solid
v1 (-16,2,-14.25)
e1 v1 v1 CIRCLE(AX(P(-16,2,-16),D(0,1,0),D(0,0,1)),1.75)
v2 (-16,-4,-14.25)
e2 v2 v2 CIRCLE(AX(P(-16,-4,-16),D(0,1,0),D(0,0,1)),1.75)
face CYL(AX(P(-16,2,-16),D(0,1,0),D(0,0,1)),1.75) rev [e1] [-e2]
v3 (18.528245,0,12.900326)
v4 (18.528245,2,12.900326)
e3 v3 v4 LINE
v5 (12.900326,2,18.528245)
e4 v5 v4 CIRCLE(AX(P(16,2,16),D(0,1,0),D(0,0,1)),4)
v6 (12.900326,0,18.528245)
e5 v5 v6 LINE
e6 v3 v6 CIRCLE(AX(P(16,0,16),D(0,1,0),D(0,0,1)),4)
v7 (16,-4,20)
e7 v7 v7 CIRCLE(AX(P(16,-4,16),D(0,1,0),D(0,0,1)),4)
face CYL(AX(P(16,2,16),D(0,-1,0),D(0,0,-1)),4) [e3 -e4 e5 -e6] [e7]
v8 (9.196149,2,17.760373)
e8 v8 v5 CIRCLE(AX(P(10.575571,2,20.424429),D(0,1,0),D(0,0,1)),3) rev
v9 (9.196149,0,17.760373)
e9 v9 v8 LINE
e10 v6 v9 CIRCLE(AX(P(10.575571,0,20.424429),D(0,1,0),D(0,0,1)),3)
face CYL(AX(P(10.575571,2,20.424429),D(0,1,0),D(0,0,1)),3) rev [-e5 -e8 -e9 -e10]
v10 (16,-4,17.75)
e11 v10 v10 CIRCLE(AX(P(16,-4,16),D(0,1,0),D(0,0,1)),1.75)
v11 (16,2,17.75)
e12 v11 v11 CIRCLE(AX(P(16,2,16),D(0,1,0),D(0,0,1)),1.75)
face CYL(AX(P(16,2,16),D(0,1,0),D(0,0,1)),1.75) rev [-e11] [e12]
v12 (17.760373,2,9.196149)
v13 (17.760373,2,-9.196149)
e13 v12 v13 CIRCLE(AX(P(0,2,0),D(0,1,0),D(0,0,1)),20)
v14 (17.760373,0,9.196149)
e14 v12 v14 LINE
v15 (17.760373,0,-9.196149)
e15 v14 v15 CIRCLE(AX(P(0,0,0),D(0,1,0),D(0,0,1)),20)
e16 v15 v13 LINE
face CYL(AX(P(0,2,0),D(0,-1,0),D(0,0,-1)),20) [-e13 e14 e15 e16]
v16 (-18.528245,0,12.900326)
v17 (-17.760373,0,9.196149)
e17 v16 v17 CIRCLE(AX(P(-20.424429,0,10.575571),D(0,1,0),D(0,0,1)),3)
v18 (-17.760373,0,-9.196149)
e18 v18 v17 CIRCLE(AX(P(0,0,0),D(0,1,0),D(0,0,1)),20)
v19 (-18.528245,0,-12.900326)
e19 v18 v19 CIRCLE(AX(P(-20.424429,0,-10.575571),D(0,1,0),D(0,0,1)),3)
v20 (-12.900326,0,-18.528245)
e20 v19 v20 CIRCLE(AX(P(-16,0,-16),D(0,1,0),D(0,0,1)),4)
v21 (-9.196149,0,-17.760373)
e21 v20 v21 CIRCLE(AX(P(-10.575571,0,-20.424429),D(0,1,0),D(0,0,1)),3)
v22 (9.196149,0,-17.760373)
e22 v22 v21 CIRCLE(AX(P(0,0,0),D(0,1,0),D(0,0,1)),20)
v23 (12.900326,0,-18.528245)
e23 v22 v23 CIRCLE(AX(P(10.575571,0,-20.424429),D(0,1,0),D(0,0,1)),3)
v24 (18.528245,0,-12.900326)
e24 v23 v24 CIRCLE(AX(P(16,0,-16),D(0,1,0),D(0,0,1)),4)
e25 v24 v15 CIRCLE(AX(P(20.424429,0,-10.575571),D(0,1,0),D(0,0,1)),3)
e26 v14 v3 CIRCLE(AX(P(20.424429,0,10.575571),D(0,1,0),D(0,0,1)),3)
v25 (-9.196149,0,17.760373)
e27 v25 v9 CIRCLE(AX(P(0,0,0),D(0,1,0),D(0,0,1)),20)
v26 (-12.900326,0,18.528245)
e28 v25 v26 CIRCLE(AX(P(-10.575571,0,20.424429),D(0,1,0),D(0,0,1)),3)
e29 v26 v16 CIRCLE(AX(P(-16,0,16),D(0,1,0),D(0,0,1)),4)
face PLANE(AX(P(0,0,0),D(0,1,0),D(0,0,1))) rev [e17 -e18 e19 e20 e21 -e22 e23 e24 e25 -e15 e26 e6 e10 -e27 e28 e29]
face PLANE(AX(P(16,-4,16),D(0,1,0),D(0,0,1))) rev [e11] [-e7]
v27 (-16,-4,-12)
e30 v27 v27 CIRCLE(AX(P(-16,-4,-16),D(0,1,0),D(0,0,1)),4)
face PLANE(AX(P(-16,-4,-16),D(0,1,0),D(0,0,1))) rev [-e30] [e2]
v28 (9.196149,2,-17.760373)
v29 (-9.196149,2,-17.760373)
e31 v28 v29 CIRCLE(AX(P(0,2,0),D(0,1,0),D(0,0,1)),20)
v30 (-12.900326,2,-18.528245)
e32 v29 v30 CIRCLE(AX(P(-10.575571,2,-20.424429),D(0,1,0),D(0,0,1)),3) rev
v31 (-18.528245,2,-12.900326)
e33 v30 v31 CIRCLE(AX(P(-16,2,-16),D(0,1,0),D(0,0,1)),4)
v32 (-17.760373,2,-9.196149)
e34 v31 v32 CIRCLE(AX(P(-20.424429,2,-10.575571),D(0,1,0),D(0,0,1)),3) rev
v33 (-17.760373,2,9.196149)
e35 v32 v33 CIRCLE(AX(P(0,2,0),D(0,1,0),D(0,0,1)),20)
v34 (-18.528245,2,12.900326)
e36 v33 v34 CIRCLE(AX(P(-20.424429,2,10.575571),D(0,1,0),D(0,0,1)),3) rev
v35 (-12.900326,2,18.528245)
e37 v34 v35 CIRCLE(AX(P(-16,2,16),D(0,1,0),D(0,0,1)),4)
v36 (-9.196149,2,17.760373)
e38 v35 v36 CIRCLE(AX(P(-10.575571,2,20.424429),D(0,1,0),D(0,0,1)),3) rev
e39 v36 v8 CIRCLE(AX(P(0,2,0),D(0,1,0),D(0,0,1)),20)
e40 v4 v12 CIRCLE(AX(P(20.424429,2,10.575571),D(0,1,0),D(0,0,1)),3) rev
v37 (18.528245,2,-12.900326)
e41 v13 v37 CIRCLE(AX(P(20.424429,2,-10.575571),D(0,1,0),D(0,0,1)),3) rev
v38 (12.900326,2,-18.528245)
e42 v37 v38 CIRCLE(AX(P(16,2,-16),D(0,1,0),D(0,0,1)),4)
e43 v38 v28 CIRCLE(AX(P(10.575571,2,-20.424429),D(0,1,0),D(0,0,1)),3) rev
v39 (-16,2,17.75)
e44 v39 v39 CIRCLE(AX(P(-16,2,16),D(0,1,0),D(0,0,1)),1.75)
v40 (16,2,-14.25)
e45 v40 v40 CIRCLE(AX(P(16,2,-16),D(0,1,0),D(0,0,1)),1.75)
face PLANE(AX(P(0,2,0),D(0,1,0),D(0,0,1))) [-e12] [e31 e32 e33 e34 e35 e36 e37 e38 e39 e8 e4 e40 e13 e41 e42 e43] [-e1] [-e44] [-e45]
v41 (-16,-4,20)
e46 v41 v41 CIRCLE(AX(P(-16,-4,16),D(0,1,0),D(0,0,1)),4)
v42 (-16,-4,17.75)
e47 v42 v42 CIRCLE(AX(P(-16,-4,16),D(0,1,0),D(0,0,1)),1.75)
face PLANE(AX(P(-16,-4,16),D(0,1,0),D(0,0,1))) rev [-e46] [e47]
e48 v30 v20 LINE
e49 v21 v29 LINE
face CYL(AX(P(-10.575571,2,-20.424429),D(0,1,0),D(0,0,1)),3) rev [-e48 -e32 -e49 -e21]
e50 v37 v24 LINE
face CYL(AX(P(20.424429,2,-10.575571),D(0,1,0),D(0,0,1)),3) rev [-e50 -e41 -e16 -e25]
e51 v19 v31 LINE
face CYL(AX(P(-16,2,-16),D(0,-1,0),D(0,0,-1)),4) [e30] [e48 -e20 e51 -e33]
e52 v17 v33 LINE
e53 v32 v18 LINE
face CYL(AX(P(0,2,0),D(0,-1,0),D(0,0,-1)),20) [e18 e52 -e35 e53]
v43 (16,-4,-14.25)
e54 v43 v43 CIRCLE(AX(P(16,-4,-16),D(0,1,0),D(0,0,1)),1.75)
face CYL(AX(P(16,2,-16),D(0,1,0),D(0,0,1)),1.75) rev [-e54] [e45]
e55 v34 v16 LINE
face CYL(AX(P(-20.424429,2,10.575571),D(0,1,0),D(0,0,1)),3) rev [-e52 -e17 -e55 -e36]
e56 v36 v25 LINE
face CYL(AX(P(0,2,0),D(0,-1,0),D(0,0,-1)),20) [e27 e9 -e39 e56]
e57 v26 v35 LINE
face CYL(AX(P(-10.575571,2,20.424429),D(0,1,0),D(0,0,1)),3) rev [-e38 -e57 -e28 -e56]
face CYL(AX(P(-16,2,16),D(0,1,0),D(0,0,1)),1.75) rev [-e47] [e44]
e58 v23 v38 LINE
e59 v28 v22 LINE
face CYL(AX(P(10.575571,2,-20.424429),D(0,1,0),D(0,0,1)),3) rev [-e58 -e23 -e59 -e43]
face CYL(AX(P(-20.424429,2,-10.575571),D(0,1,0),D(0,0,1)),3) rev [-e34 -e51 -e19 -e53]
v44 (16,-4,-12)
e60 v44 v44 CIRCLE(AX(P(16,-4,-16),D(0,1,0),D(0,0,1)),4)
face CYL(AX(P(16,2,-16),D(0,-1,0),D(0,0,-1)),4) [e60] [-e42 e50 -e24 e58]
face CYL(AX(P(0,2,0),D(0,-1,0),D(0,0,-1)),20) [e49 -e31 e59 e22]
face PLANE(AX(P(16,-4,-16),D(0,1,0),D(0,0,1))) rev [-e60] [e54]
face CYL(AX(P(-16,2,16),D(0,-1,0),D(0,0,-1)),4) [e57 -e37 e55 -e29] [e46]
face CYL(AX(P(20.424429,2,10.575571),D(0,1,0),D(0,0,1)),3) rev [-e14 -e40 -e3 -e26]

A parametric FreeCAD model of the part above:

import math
import FreeCAD as App
import Part
import Sketcher

V = App.Vector


def edges_at(feature, points):
    """Names of the edges that pass closest to the given points."""
    edges = feature.Shape.Edges
    near = lambda p: min(range(len(edges)), key=lambda i: edges[i].distToShape(Part.Vertex(*p))[0])
    return sorted({f"Edge{near(p) + 1}" for p in points})

doc = App.newDocument("Part")
body = doc.addObject("PartDesign::Body", "Body")

# Sketch on XZ plane
sketch1 = doc.addObject("Sketcher::SketchObject", "Sketch")
body.addObject(sketch1)
sketch1.AttachmentSupport = (doc.XZ_Plane, [""])
sketch1.MapMode = "FlatFace"
sketch1.addGeometry(Part.ArcOfCircle(Part.Circle(V(0, 0, 0), V(0, 0, 1), 20), math.radians(143), math.radians(217)), False)
sketch1.addGeometry(Part.ArcOfCircle(Part.Circle(V(-16, 16, 0), V(0, 0, 1), 4), math.radians(0), math.radians(270)), False)
sketch1.addGeometry(Part.ArcOfCircle(Part.Circle(V(0, 0, 0), V(0, 0, 1), 20), math.radians(53), math.radians(127)), False)
sketch1.addGeometry(Part.ArcOfCircle(Part.Circle(V(16, 16, 0), V(0, 0, 1), 4), math.radians(-90), math.radians(180)), False)
sketch1.addGeometry(Part.ArcOfCircle(Part.Circle(V(0, 0, 0), V(0, 0, 1), 20), math.radians(-37), math.radians(37)), False)
sketch1.addGeometry(Part.ArcOfCircle(Part.Circle(V(16, -16, 0), V(0, 0, 1), 4), math.radians(180), math.radians(450)), False)
sketch1.addGeometry(Part.ArcOfCircle(Part.Circle(V(0, 0, 0), V(0, 0, 1), 20), math.radians(-127), math.radians(-53)), False)
sketch1.addGeometry(Part.ArcOfCircle(Part.Circle(V(-16, -16, 0), V(0, 0, 1), 4), math.radians(90), math.radians(360)), False)
sketch1.addConstraint(Sketcher.Constraint("Coincident", 0, 1, 1, 2))
sketch1.addConstraint(Sketcher.Constraint("Coincident", 1, 1, 2, 2))
sketch1.addConstraint(Sketcher.Constraint("Coincident", 2, 1, 3, 2))
sketch1.addConstraint(Sketcher.Constraint("Coincident", 3, 1, 4, 2))
sketch1.addConstraint(Sketcher.Constraint("Coincident", 4, 1, 5, 2))
sketch1.addConstraint(Sketcher.Constraint("Coincident", 5, 1, 6, 2))
sketch1.addConstraint(Sketcher.Constraint("Coincident", 6, 1, 7, 2))
sketch1.addConstraint(Sketcher.Constraint("Coincident", 7, 1, 0, 2))
sketch1.addConstraint(Sketcher.Constraint("Coincident", 0, 3, -1, 1))
sketch1.addConstraint(Sketcher.Constraint("Coincident", 2, 3, -1, 1))
sketch1.addConstraint(Sketcher.Constraint("Coincident", 4, 3, -1, 1))
sketch1.addConstraint(Sketcher.Constraint("Coincident", 6, 3, -1, 1))
sketch1.addConstraint(Sketcher.Constraint("Equal", 0, 2))
sketch1.addConstraint(Sketcher.Constraint("Equal", 1, 3))
sketch1.addConstraint(Sketcher.Constraint("Equal", 2, 4))
sketch1.addConstraint(Sketcher.Constraint("Equal", 3, 5))
sketch1.addConstraint(Sketcher.Constraint("Equal", 4, 6))
sketch1.addConstraint(Sketcher.Constraint("Equal", 5, 7))
sketch1.addConstraint(Sketcher.Constraint("Symmetric", 1, 3, 5, 3, -1, 1))
sketch1.addConstraint(Sketcher.Constraint("Symmetric", 3, 3, 7, 3, -1, 1))
sketch1.addConstraint(Sketcher.Constraint("Symmetric", 1, 3, 3, 3, -2))
sketch1.addConstraint(Sketcher.Constraint("Horizontal", 3, 3, 1, 1))
sketch1.addConstraint(Sketcher.Constraint("Vertical", 7, 3, 0, 1))
sketch1.addConstraint(Sketcher.Constraint("Radius", 0, 20.0))
sketch1.addConstraint(Sketcher.Constraint("Radius", 1, 4.0))
pad1 = doc.addObject("PartDesign::Pad", "Pad")
body.addObject(pad1)
pad1.Profile = sketch1
pad1.Length = 2
pad1.Reversed = True
doc.recompute()

fillet = doc.addObject("PartDesign::Fillet", "Fillet")
body.addObject(fillet)
fillet.Base = (pad1, edges_at(pad1, [
    (-16, 1, 12),
    (-16, 1, -12),
    (-12, 1, -16),
    (12, 1, -16),
    (16, 1, -12),
    (16, 1, 12),
    (12, 1, 16),
    (-12, 1, 16),
]))
fillet.Radius = 3

# Sketch on XZ plane
sketch2 = doc.addObject("Sketcher::SketchObject", "Sketch001")
body.addObject(sketch2)
sketch2.AttachmentSupport = (doc.XZ_Plane, [""])
sketch2.MapMode = "FlatFace"
sketch2.AttachmentOffset = App.Placement(V(0, 0, 4), App.Rotation())
sketch2.addGeometry(Part.Circle(V(-16, -16, 0), V(0, 0, 1), 4), False)
sketch2.addGeometry(Part.Circle(V(16, -16, 0), V(0, 0, 1), 4), False)
sketch2.addGeometry(Part.Circle(V(16, 16, 0), V(0, 0, 1), 4), False)
sketch2.addGeometry(Part.Circle(V(-16, 16, 0), V(0, 0, 1), 4), False)
sketch2.addConstraint(Sketcher.Constraint("Equal", 0, 1))
sketch2.addConstraint(Sketcher.Constraint("Equal", 1, 2))
sketch2.addConstraint(Sketcher.Constraint("Equal", 2, 3))
sketch2.addConstraint(Sketcher.Constraint("Symmetric", 0, 3, 2, 3, -1, 1))
sketch2.addConstraint(Sketcher.Constraint("Symmetric", 1, 3, 3, 3, -1, 1))
sketch2.addConstraint(Sketcher.Constraint("Symmetric", 0, 3, 1, 3, -2))
sketch2.addConstraint(Sketcher.Constraint("Diameter", 0, 8.0))
sketch2.addConstraint(Sketcher.Constraint("DistanceX", 0, 3, -1, 1, 16.0))
sketch2.addConstraint(Sketcher.Constraint("DistanceY", 0, 3, -1, 1, 16.0))
pad2 = doc.addObject("PartDesign::Pad", "Pad001")
body.addObject(pad2)
pad2.Profile = sketch2
pad2.Length = 4
pad2.Reversed = True

# Sketch on XZ plane
sketch3 = doc.addObject("Sketcher::SketchObject", "Sketch002")
body.addObject(sketch3)
sketch3.AttachmentSupport = (doc.XZ_Plane, [""])
sketch3.MapMode = "FlatFace"
sketch3.AttachmentOffset = App.Placement(V(0, 0, -2), App.Rotation())
sketch3.addGeometry(Part.Circle(V(-16, -16, 0), V(0, 0, 1), 1.8), False)
sketch3.addGeometry(Part.Circle(V(16, -16, 0), V(0, 0, 1), 1.8), False)
sketch3.addGeometry(Part.Circle(V(16, 16, 0), V(0, 0, 1), 1.8), False)
sketch3.addGeometry(Part.Circle(V(-16, 16, 0), V(0, 0, 1), 1.8), False)
sketch3.addConstraint(Sketcher.Constraint("Equal", 0, 1))
sketch3.addConstraint(Sketcher.Constraint("Equal", 1, 2))
sketch3.addConstraint(Sketcher.Constraint("Equal", 2, 3))
sketch3.addConstraint(Sketcher.Constraint("Symmetric", 0, 3, 2, 3, -1, 1))
sketch3.addConstraint(Sketcher.Constraint("Symmetric", 1, 3, 3, 3, -1, 1))
sketch3.addConstraint(Sketcher.Constraint("Symmetric", 0, 3, 1, 3, -2))
sketch3.addConstraint(Sketcher.Constraint("Diameter", 0, 3.5))
sketch3.addConstraint(Sketcher.Constraint("DistanceX", 0, 3, -1, 1, 16.0))
sketch3.addConstraint(Sketcher.Constraint("DistanceY", 0, 3, -1, 1, 16.0))
doc.recompute()
hole = doc.addObject("PartDesign::Hole", "Hole")
body.addObject(hole)
hole.Profile = sketch3
hole.ThreadType = "None"
hole.Diameter = 3.5
hole.DepthType = "ThroughAll"
hole.Reversed = True

doc.recompute()
